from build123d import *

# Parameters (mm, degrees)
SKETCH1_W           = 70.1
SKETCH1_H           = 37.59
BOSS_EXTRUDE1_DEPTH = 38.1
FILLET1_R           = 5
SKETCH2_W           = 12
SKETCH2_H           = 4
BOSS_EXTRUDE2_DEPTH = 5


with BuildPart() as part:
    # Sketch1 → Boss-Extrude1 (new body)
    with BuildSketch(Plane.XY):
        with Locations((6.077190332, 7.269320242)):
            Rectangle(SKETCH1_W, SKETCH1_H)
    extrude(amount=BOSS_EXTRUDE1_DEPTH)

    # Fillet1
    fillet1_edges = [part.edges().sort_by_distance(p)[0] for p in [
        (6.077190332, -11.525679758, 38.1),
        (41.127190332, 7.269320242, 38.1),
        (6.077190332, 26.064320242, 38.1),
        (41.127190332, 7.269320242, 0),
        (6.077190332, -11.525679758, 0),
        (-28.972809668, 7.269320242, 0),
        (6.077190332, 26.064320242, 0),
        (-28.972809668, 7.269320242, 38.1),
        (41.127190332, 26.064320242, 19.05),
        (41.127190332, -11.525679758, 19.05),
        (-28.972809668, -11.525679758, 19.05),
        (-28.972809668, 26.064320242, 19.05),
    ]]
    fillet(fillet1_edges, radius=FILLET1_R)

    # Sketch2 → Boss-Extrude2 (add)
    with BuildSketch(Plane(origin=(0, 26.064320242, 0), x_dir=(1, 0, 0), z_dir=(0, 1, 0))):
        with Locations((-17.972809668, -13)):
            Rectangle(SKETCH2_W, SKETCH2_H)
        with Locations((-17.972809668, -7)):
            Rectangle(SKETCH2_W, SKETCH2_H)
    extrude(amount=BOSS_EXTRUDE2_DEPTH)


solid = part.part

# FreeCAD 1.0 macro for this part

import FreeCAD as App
import Part
import Sketcher
from FreeCAD import Vector

doc = App.newDocument("Part")
params = doc.addObject("Spreadsheet::Sheet", "Params")
for row, (alias, value) in enumerate([
    ("sketch1_width", "70.1 mm"),
    ("sketch1_height", "37.59 mm"),
    ("pad1_length", "38.1 mm"),
    ("fillet_radius", "5 mm"),
    ("sketch2_width", "12 mm"),
    ("sketch2_height", "4 mm"),
    ("pad2_length", "5 mm"),
], start=1):
    params.set(f"A{row}", alias)
    params.set(f"B{row}", "=" + value)
    params.setAlias(f"B{row}", alias)

body = doc.addObject("PartDesign::Body", "Body")

sketch1 = body.newObject("Sketcher::SketchObject", "Sketch")
sketch1.AttachmentSupport = (doc.getObject("XY_Plane"), [""])
sketch1.MapMode = "FlatFace"
sketch1.addGeometry([
    Part.LineSegment(Vector(-28.97281, 26.06432, 0), Vector(-28.97281, -11.52568, 0)),
    Part.LineSegment(Vector(-28.97281, -11.52568, 0), Vector(41.12719, -11.52568, 0)),
    Part.LineSegment(Vector(41.12719, -11.52568, 0), Vector(41.12719, 26.06432, 0)),
    Part.LineSegment(Vector(41.12719, 26.06432, 0), Vector(-28.97281, 26.06432, 0)),
], False)
sketch1.addConstraint([
    Sketcher.Constraint("Coincident", 0, 2, 1, 1),
    Sketcher.Constraint("Coincident", 1, 2, 2, 1),
    Sketcher.Constraint("Coincident", 2, 2, 3, 1),
    Sketcher.Constraint("Coincident", 3, 2, 0, 1),
    Sketcher.Constraint("Vertical", 0),
    Sketcher.Constraint("Horizontal", 1),
    Sketcher.Constraint("Vertical", 2),
    Sketcher.Constraint("Horizontal", 3),
    Sketcher.Constraint("DistanceX", 1, 1, 1, 2, 70.1),
    Sketcher.Constraint("DistanceY", 0, 2, 0, 1, 37.59),
    Sketcher.Constraint("DistanceX", 0, 2, -1, 1, 28.97281),
    Sketcher.Constraint("DistanceY", 0, 2, -1, 1, 11.52568),
])
sketch1.setExpression("Constraints[8]", "Params.sketch1_width")
sketch1.setExpression("Constraints[9]", "Params.sketch1_height")
pad1 = body.newObject("PartDesign::Pad", "Pad")
pad1.Profile = sketch1
pad1.setExpression("Length", "Params.pad1_length")
doc.recompute()

fillet = body.newObject("PartDesign::Fillet", "Fillet")
fillet.Base = (pad1, ["Edge1"])
fillet.UseAllEdges = True
fillet.setExpression("Radius", "Params.fillet_radius")

sketch2 = body.newObject("Sketcher::SketchObject", "Sketch001")
sketch2.AttachmentSupport = (doc.getObject("XZ_Plane"), [""])
sketch2.MapMode = "FlatFace"
sketch2.AttachmentOffset = App.Placement(Vector(0, 0, -26.06432), App.Rotation())
sketch2.addGeometry([
    Part.LineSegment(Vector(-23.97281, 11, 0), Vector(-23.97281, 15, 0)),
    Part.LineSegment(Vector(-23.97281, 15, 0), Vector(-11.97281, 15, 0)),
    Part.LineSegment(Vector(-11.97281, 15, 0), Vector(-11.97281, 11, 0)),
    Part.LineSegment(Vector(-11.97281, 11, 0), Vector(-23.97281, 11, 0)),
    Part.LineSegment(Vector(-23.97281, 5, 0), Vector(-23.97281, 9, 0)),
    Part.LineSegment(Vector(-23.97281, 9, 0), Vector(-11.97281, 9, 0)),
    Part.LineSegment(Vector(-11.97281, 9, 0), Vector(-11.97281, 5, 0)),
    Part.LineSegment(Vector(-11.97281, 5, 0), Vector(-23.97281, 5, 0)),
], False)
sketch2.addConstraint([
    Sketcher.Constraint("Coincident", 0, 2, 1, 1),
    Sketcher.Constraint("Coincident", 1, 2, 2, 1),
    Sketcher.Constraint("Coincident", 2, 2, 3, 1),
    Sketcher.Constraint("Coincident", 3, 2, 0, 1),
    Sketcher.Constraint("Coincident", 4, 2, 5, 1),
    Sketcher.Constraint("Coincident", 5, 2, 6, 1),
    Sketcher.Constraint("Coincident", 6, 2, 7, 1),
    Sketcher.Constraint("Coincident", 7, 2, 4, 1),
    Sketcher.Constraint("Vertical", 0),
    Sketcher.Constraint("Horizontal", 1),
    Sketcher.Constraint("Vertical", 2),
    Sketcher.Constraint("Horizontal", 3),
    Sketcher.Constraint("Vertical", 4),
    Sketcher.Constraint("Horizontal", 5),
    Sketcher.Constraint("Vertical", 6),
    Sketcher.Constraint("Horizontal", 7),
    Sketcher.Constraint("Vertical", 3, 2, 4, 2),
    Sketcher.Constraint("Vertical", 2, 2, 5, 2),
    Sketcher.Constraint("Equal", 2, 4),
    Sketcher.Constraint("DistanceX", 1, 1, 1, 2, 12.0),
    Sketcher.Constraint("DistanceY", 0, 1, 0, 2, 4.0),
    Sketcher.Constraint("DistanceY", -1, 1, 0, 2, 15.0),
    Sketcher.Constraint("DistanceY", -1, 1, 4, 2, 9.0),
    Sketcher.Constraint("DistanceX", 0, 2, -1, 1, 23.97281),
])
sketch2.setExpression("Constraints[19]", "Params.sketch2_width")
sketch2.setExpression("Constraints[20]", "Params.sketch2_height")
pad2 = body.newObject("PartDesign::Pad", "Pad001")
pad2.Profile = sketch2
pad2.setExpression("Length", "Params.pad2_length")
pad2.Reversed = True

doc.recompute()
